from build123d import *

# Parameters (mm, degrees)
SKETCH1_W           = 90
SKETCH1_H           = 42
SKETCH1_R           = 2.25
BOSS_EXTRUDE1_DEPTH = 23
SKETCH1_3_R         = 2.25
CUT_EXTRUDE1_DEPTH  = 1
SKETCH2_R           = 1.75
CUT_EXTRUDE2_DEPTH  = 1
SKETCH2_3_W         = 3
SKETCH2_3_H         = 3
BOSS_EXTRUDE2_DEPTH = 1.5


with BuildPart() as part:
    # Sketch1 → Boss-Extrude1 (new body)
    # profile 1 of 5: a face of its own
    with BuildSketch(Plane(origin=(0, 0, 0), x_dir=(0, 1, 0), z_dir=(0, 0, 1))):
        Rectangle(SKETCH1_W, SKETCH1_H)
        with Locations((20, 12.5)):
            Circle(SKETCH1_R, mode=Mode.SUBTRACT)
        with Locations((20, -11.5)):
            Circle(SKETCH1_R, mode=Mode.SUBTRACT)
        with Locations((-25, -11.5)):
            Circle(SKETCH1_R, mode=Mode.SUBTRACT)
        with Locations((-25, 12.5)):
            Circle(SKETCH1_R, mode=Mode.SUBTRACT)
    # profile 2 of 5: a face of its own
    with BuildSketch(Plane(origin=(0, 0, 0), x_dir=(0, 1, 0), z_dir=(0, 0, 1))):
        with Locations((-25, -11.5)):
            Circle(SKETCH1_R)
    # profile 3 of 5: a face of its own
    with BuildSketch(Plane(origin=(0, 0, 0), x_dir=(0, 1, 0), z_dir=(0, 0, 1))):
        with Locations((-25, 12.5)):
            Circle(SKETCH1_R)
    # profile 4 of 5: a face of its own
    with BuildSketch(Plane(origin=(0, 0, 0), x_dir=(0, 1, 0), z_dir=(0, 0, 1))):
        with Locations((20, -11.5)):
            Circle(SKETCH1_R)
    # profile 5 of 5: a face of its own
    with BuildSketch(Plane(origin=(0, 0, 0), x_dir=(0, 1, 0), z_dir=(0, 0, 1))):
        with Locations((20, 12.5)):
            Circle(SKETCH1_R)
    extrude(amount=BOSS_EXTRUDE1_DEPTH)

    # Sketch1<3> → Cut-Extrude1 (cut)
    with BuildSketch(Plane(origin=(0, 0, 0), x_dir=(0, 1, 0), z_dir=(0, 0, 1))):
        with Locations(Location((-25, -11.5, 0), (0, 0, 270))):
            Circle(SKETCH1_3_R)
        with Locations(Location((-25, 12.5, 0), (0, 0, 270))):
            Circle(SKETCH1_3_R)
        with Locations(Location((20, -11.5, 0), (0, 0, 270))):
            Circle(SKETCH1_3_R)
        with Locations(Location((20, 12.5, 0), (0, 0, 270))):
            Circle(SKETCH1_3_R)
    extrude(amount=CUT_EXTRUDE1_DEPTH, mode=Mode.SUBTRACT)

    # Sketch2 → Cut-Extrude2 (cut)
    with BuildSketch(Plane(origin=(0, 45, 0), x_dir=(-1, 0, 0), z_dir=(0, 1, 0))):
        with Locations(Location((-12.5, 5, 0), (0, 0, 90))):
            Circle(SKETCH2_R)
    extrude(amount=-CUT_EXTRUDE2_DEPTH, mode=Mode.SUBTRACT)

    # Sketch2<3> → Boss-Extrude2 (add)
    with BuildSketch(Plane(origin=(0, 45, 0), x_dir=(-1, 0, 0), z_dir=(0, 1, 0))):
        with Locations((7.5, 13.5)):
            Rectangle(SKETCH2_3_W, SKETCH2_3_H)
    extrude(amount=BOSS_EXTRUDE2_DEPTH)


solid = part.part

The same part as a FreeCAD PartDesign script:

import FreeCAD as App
import Part
import Sketcher
from FreeCAD import Vector
Q = App.Units.Quantity

doc = App.newDocument("Part")
body = doc.addObject("PartDesign::Body", "Body")

# Sketch on XY plane
sketch1 = doc.addObject("Sketcher::SketchObject", "Sketch")
body.addObject(sketch1)
sketch1.AttachmentSupport = (doc.XY_Plane, [""])
sketch1.MapMode = "FlatFace"
sketch1.addGeometry(Part.LineSegment(Vector(-21, -45, 0), Vector(21, -45, 0)), False)
sketch1.addGeometry(Part.LineSegment(Vector(21, -45, 0), Vector(21, 45, 0)), False)
sketch1.addGeometry(Part.LineSegment(Vector(21, 45, 0), Vector(-21, 45, 0)), False)
sketch1.addGeometry(Part.LineSegment(Vector(-21, 45, 0), Vector(-21, -45, 0)), False)
sketch1.addConstraint(Sketcher.Constraint("Coincident", 0, 2, 1, 1))
sketch1.addConstraint(Sketcher.Constraint("Coincident", 1, 2, 2, 1))
sketch1.addConstraint(Sketcher.Constraint("Coincident", 2, 2, 3, 1))
sketch1.addConstraint(Sketcher.Constraint("Coincident", 3, 2, 0, 1))
sketch1.addConstraint(Sketcher.Constraint("Horizontal", 0))
sketch1.addConstraint(Sketcher.Constraint("Vertical", 1))
sketch1.addConstraint(Sketcher.Constraint("Horizontal", 2))
sketch1.addConstraint(Sketcher.Constraint("Vertical", 3))
sketch1.addConstraint(Sketcher.Constraint("Symmetric", 0, 2, 2, 2, -1, 1))
sketch1.addConstraint(Sketcher.Constraint("DistanceX", 0, 1, 0, 2, Q("42 mm")))
sketch1.addConstraint(Sketcher.Constraint("DistanceY", 1, 1, 1, 2, Q("90 mm")))
pad1 = doc.addObject("PartDesign::Pad", "Pad")
body.addObject(pad1)
pad1.Profile = sketch1
pad1.Length = 23

# Sketch on XY plane
sketch2 = doc.addObject("Sketcher::SketchObject", "Sketch001")
body.addObject(sketch2)
sketch2.AttachmentSupport = (doc.XY_Plane, [""])
sketch2.MapMode = "FlatFace"
sketch2.addGeometry(Part.Circle(Vector(11.5, -25, 0), Vector(0, 0, 1), 2.25), False)
sketch2.addGeometry(Part.Circle(Vector(-12.5, -25, 0), Vector(0, 0, 1), 2.25), False)
sketch2.addGeometry(Part.Circle(Vector(11.5, 20, 0), Vector(0, 0, 1), 2.25), False)
sketch2.addGeometry(Part.Circle(Vector(-12.5, 20, 0), Vector(0, 0, 1), 2.25), False)
sketch2.addConstraint(Sketcher.Constraint("Equal", 0, 1))
sketch2.addConstraint(Sketcher.Constraint("Equal", 1, 2))
sketch2.addConstraint(Sketcher.Constraint("Equal", 2, 3))
sketch2.addConstraint(Sketcher.Constraint("Horizontal", 0, 3, 1, 3))
sketch2.addConstraint(Sketcher.Constraint("Horizontal", 2, 3, 3, 3))
sketch2.addConstraint(Sketcher.Constraint("Vertical", 0, 3, 2, 3))
sketch2.addConstraint(Sketcher.Constraint("Vertical", 1, 3, 3, 3))
sketch2.addConstraint(Sketcher.Constraint("Diameter", 0, Q("4.5 mm")))
sketch2.addConstraint(Sketcher.Constraint("DistanceY", 0, 3, -1, 1, Q("25 mm")))
sketch2.addConstraint(Sketcher.Constraint("DistanceY", -1, 1, 2, 3, Q("20 mm")))
sketch2.addConstraint(Sketcher.Constraint("DistanceX", 1, 3, 0, 3, Q("24 mm")))
sketch2.addConstraint(Sketcher.Constraint("DistanceX", -1, 1, 0, 3, Q("11.5 mm")))
pocket1 = doc.addObject("PartDesign::Pocket", "Pocket")
body.addObject(pocket1)
pocket1.Profile = sketch2
pocket1.Length = 1
pocket1.Reversed = True

# Sketch on XZ plane
sketch3 = doc.addObject("Sketcher::SketchObject", "Sketch002")
body.addObject(sketch3)
sketch3.AttachmentSupport = (doc.XZ_Plane, [""])
sketch3.MapMode = "FlatFace"
sketch3.AttachmentOffset = App.Placement(Vector(0, 0, -45), App.Rotation())
sketch3.addGeometry(Part.Circle(Vector(12.5, 5, 0), Vector(0, 0, 1), 1.75), False)
sketch3.addConstraint(Sketcher.Constraint("Diameter", 0, Q("3.5 mm")))
sketch3.addConstraint(Sketcher.Constraint("DistanceY", -1, 1, 0, 3, Q("5 mm")))
sketch3.addConstraint(Sketcher.Constraint("DistanceX", -1, 1, 0, 3, Q("12.5 mm")))
pocket2 = doc.addObject("PartDesign::Pocket", "Pocket001")
body.addObject(pocket2)
pocket2.Profile = sketch3
pocket2.Length = 1
pocket2.Reversed = True

# Sketch on XZ plane
sketch4 = doc.addObject("Sketcher::SketchObject", "Sketch003")
body.addObject(sketch4)
sketch4.AttachmentSupport = (doc.XZ_Plane, [""])
sketch4.MapMode = "FlatFace"
sketch4.AttachmentOffset = App.Placement(Vector(0, 0, -45), App.Rotation())
sketch4.addGeometry(Part.LineSegment(Vector(-6, 15, 0), Vector(-6, 12, 0)), False)
sketch4.addGeometry(Part.LineSegment(Vector(-6, 12, 0), Vector(-9, 12, 0)), False)
sketch4.addGeometry(Part.LineSegment(Vector(-9, 12, 0), Vector(-9, 15, 0)), False)
sketch4.addGeometry(Part.LineSegment(Vector(-9, 15, 0), Vector(-6, 15, 0)), False)
sketch4.addConstraint(Sketcher.Constraint("Coincident", 0, 2, 1, 1))
sketch4.addConstraint(Sketcher.Constraint("Coincident", 1, 2, 2, 1))
sketch4.addConstraint(Sketcher.Constraint("Coincident", 2, 2, 3, 1))
sketch4.addConstraint(Sketcher.Constraint("Coincident", 3, 2, 0, 1))
sketch4.addConstraint(Sketcher.Constraint("Vertical", 0))
sketch4.addConstraint(Sketcher.Constraint("Horizontal", 1))
sketch4.addConstraint(Sketcher.Constraint("Vertical", 2))
sketch4.addConstraint(Sketcher.Constraint("Horizontal", 3))
sketch4.addConstraint(Sketcher.Constraint("Equal", 3, 0))
sketch4.addConstraint(Sketcher.Constraint("DistanceX", 1, 2, 1, 1, Q("3 mm")))
sketch4.addConstraint(Sketcher.Constraint("DistanceX", 0, 2, -1, 1, Q("6 mm")))
sketch4.addConstraint(Sketcher.Constraint("DistanceY", -1, 1, 0, 2, Q("12 mm")))
pad2 = doc.addObject("PartDesign::Pad", "Pad001")
body.addObject(pad2)
pad2.Profile = sketch4
pad2.Length = 1.5
pad2.Reversed = True

doc.recompute()
